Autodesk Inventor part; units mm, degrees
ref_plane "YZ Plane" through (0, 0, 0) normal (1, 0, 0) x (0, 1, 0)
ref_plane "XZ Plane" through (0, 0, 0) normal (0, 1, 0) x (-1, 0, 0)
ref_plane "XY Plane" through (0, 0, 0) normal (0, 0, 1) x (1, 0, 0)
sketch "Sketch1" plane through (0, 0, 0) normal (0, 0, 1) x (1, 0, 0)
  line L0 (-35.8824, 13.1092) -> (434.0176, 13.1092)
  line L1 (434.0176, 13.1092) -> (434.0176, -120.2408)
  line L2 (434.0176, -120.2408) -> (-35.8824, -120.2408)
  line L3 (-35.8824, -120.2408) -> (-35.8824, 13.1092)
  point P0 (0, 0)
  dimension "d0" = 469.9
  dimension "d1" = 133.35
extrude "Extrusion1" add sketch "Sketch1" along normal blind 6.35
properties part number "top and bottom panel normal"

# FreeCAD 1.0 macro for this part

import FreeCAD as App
import Part
import Sketcher

V = App.Vector
Q = App.Units.Quantity

doc = App.newDocument("Part")
body = doc.addObject("PartDesign::Body", "Body")

# Sketch on XY plane
sketch1 = body.newObject("Sketcher::SketchObject", "Sketch")
sketch1.AttachmentSupport = (doc.getObject("XY_Plane"), [""])
sketch1.MapMode = "FlatFace"
sketch1.addGeometry([
    Part.LineSegment(V(434, 13, 0), V(-36, 13, 0)),
    Part.LineSegment(V(-36, 13, 0), V(-36, -120, 0)),
    Part.LineSegment(V(-36, -120, 0), V(434, -120, 0)),
    Part.LineSegment(V(434, -120, 0), V(434, 13, 0)),
], False)
sketch1.addConstraint([
    Sketcher.Constraint("Coincident", 0, 2, 1, 1),
    Sketcher.Constraint("Coincident", 1, 2, 2, 1),
    Sketcher.Constraint("Coincident", 2, 2, 3, 1),
    Sketcher.Constraint("Coincident", 3, 2, 0, 1),
    Sketcher.Constraint("Horizontal", 0),
    Sketcher.Constraint("Vertical", 1),
    Sketcher.Constraint("Horizontal", 2),
    Sketcher.Constraint("Vertical", 3),
    Sketcher.Constraint("DistanceX", 0, 2, 0, 1, Q("18.5 in")),
    Sketcher.Constraint("DistanceY", 1, 2, 1, 1, Q("5.25 in")),
    Sketcher.Constraint("DistanceX", 0, 2, -1, 1, Q("1.4127 in")),
    Sketcher.Constraint("DistanceY", -1, 1, 0, 2, Q("0.5161 in")),
])
pad1 = body.newObject("PartDesign::Pad", "Pad")
pad1.Profile = sketch1
pad1.Length = Q("0.25 in")

doc.recompute()
